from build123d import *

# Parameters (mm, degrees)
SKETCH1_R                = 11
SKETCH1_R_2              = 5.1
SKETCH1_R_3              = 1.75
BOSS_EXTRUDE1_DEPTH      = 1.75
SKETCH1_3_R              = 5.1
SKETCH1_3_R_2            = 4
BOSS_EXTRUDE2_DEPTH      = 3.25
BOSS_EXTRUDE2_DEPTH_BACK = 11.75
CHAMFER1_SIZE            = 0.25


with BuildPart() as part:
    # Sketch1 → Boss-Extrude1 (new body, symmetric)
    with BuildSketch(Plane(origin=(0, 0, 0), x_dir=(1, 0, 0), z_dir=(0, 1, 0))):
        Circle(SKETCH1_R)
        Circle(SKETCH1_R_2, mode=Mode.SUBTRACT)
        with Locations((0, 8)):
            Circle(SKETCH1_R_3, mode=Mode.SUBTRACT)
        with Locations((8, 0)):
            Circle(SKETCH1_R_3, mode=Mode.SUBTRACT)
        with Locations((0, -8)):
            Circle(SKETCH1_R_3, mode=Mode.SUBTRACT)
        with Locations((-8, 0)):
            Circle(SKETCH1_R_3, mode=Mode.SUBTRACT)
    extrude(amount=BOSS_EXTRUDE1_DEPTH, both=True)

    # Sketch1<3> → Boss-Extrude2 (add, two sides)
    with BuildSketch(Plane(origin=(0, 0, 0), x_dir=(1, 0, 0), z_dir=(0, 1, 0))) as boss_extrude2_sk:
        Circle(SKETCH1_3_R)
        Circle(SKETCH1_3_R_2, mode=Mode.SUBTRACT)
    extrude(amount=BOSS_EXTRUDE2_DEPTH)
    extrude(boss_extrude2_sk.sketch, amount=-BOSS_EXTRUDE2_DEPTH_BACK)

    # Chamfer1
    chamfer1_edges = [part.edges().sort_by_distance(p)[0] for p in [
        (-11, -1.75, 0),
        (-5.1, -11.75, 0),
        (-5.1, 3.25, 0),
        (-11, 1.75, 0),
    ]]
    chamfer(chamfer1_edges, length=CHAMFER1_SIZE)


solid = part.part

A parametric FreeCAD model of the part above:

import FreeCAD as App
import Part
import Sketcher
from FreeCAD import Vector
Q = App.Units.Quantity


def edges_at(feature, points):
    """Names of the edges that pass closest to the given points."""
    edges = feature.Shape.Edges
    near = lambda p: min(range(len(edges)), key=lambda i: edges[i].distToShape(Part.Vertex(*p))[0])
    return sorted({f"Edge{near(p) + 1}" for p in points})

doc = App.newDocument("Part")
params = doc.addObject("Spreadsheet::Sheet", "Params")
for row, (alias, value) in enumerate([
    ("sketch1_diameter", "22 mm"),
    ("sketch1_diameter2", "3.5 mm"),
    ("sketch1_diameter3", "10.2 mm"),
    ("pad1_length", "3.5 mm"),
    ("sketch2_diameter", "8 mm"),
    ("sketch2_diameter2", "10.2 mm"),
    ("pad2_length", "3.25 mm"),
    ("pad2_length2", "11.75 mm"),
    ("chamfer_size", "0.25 mm"),
], start=1):
    params.set(f"A{row}", alias)
    params.set(f"B{row}", "=" + value)
    params.setAlias(f"B{row}", alias)

body = doc.addObject("PartDesign::Body", "Body")

sketch1 = doc.addObject("Sketcher::SketchObject", "Sketch")
body.addObject(sketch1)
sketch1.AttachmentSupport = (doc.XZ_Plane, [""])
sketch1.MapMode = "FlatFace"
sketch1.addGeometry([
    Part.Circle(Vector(0, 0, 0), Vector(0, 0, 1), 11),
    Part.Circle(Vector(0, 8, 0), Vector(0, 0, 1), 1.8),
    Part.Circle(Vector(-8, 0, 0), Vector(0, 0, 1), 1.8),
    Part.Circle(Vector(0, 0, 0), Vector(0, 0, 1), 5.1),
    Part.Circle(Vector(8, 0, 0), Vector(0, 0, 1), 1.8),
    Part.Circle(Vector(0, -8, 0), Vector(0, 0, 1), 1.8),
], False)
sketch1.addConstraint([
    Sketcher.Constraint("Coincident", 0, 3, -1, 1),
    Sketcher.Constraint("Coincident", 3, 3, -1, 1),
    Sketcher.Constraint("Equal", 1, 2),
    Sketcher.Constraint("Equal", 2, 4),
    Sketcher.Constraint("Equal", 4, 5),
    Sketcher.Constraint("Symmetric", 2, 3, 4, 3, -1, 1),
    Sketcher.Constraint("Symmetric", 1, 3, 5, 3, -1, 1),
    Sketcher.Constraint("PointOnObject", 1, 3, -2),
    Sketcher.Constraint("PointOnObject", 2, 3, -1),
    Sketcher.Constraint("Diameter", 0, Q("22 mm")),
    Sketcher.Constraint("Diameter", 1, Q("3.5 mm")),
    Sketcher.Constraint("Diameter", 3, Q("10.2 mm")),
    Sketcher.Constraint("DistanceY", -1, 1, 1, 3, Q("8 mm")),
    Sketcher.Constraint("DistanceX", 2, 3, -1, 1, Q("8 mm")),
])
sketch1.setExpression("Constraints[9]", "Params.sketch1_diameter")
sketch1.setExpression("Constraints[10]", "Params.sketch1_diameter2")
sketch1.setExpression("Constraints[11]", "Params.sketch1_diameter3")
pad1 = doc.addObject("PartDesign::Pad", "Pad")
body.addObject(pad1)
pad1.Profile = sketch1
pad1.setExpression("Length", "Params.pad1_length")
pad1.Midplane = True

sketch2 = doc.addObject("Sketcher::SketchObject", "Sketch001")
body.addObject(sketch2)
sketch2.AttachmentSupport = (doc.XZ_Plane, [""])
sketch2.MapMode = "FlatFace"
sketch2.addGeometry([
    Part.Circle(Vector(0, 0, 0), Vector(0, 0, 1), 5.1),
    Part.Circle(Vector(0, 0, 0), Vector(0, 0, 1), 4),
], False)
sketch2.addConstraint([
    Sketcher.Constraint("Coincident", 0, 3, -1, 1),
    Sketcher.Constraint("Coincident", 1, 3, -1, 1),
    Sketcher.Constraint("Diameter", 1, Q("8 mm")),
    Sketcher.Constraint("Diameter", 0, Q("10.2 mm")),
])
sketch2.setExpression("Constraints[2]", "Params.sketch2_diameter")
sketch2.setExpression("Constraints[3]", "Params.sketch2_diameter2")
pad2 = doc.addObject("PartDesign::Pad", "Pad001")
body.addObject(pad2)
pad2.Profile = sketch2
pad2.Type = "TwoLengths"
pad2.setExpression("Length", "Params.pad2_length")
pad2.setExpression("Length2", "Params.pad2_length2")
pad2.Reversed = True
doc.recompute()

chamfer = doc.addObject("PartDesign::Chamfer", "Chamfer")
body.addObject(chamfer)
chamfer.Base = (pad2, edges_at(pad2, [
    (-11, -1.75, 0),
    (-5.1, -11.75, 0),
    (-5.1, 3.25, 0),
    (-11, 1.75, 0),
]))
chamfer.setExpression("Size", "Params.chamfer_size")

doc.recompute()
